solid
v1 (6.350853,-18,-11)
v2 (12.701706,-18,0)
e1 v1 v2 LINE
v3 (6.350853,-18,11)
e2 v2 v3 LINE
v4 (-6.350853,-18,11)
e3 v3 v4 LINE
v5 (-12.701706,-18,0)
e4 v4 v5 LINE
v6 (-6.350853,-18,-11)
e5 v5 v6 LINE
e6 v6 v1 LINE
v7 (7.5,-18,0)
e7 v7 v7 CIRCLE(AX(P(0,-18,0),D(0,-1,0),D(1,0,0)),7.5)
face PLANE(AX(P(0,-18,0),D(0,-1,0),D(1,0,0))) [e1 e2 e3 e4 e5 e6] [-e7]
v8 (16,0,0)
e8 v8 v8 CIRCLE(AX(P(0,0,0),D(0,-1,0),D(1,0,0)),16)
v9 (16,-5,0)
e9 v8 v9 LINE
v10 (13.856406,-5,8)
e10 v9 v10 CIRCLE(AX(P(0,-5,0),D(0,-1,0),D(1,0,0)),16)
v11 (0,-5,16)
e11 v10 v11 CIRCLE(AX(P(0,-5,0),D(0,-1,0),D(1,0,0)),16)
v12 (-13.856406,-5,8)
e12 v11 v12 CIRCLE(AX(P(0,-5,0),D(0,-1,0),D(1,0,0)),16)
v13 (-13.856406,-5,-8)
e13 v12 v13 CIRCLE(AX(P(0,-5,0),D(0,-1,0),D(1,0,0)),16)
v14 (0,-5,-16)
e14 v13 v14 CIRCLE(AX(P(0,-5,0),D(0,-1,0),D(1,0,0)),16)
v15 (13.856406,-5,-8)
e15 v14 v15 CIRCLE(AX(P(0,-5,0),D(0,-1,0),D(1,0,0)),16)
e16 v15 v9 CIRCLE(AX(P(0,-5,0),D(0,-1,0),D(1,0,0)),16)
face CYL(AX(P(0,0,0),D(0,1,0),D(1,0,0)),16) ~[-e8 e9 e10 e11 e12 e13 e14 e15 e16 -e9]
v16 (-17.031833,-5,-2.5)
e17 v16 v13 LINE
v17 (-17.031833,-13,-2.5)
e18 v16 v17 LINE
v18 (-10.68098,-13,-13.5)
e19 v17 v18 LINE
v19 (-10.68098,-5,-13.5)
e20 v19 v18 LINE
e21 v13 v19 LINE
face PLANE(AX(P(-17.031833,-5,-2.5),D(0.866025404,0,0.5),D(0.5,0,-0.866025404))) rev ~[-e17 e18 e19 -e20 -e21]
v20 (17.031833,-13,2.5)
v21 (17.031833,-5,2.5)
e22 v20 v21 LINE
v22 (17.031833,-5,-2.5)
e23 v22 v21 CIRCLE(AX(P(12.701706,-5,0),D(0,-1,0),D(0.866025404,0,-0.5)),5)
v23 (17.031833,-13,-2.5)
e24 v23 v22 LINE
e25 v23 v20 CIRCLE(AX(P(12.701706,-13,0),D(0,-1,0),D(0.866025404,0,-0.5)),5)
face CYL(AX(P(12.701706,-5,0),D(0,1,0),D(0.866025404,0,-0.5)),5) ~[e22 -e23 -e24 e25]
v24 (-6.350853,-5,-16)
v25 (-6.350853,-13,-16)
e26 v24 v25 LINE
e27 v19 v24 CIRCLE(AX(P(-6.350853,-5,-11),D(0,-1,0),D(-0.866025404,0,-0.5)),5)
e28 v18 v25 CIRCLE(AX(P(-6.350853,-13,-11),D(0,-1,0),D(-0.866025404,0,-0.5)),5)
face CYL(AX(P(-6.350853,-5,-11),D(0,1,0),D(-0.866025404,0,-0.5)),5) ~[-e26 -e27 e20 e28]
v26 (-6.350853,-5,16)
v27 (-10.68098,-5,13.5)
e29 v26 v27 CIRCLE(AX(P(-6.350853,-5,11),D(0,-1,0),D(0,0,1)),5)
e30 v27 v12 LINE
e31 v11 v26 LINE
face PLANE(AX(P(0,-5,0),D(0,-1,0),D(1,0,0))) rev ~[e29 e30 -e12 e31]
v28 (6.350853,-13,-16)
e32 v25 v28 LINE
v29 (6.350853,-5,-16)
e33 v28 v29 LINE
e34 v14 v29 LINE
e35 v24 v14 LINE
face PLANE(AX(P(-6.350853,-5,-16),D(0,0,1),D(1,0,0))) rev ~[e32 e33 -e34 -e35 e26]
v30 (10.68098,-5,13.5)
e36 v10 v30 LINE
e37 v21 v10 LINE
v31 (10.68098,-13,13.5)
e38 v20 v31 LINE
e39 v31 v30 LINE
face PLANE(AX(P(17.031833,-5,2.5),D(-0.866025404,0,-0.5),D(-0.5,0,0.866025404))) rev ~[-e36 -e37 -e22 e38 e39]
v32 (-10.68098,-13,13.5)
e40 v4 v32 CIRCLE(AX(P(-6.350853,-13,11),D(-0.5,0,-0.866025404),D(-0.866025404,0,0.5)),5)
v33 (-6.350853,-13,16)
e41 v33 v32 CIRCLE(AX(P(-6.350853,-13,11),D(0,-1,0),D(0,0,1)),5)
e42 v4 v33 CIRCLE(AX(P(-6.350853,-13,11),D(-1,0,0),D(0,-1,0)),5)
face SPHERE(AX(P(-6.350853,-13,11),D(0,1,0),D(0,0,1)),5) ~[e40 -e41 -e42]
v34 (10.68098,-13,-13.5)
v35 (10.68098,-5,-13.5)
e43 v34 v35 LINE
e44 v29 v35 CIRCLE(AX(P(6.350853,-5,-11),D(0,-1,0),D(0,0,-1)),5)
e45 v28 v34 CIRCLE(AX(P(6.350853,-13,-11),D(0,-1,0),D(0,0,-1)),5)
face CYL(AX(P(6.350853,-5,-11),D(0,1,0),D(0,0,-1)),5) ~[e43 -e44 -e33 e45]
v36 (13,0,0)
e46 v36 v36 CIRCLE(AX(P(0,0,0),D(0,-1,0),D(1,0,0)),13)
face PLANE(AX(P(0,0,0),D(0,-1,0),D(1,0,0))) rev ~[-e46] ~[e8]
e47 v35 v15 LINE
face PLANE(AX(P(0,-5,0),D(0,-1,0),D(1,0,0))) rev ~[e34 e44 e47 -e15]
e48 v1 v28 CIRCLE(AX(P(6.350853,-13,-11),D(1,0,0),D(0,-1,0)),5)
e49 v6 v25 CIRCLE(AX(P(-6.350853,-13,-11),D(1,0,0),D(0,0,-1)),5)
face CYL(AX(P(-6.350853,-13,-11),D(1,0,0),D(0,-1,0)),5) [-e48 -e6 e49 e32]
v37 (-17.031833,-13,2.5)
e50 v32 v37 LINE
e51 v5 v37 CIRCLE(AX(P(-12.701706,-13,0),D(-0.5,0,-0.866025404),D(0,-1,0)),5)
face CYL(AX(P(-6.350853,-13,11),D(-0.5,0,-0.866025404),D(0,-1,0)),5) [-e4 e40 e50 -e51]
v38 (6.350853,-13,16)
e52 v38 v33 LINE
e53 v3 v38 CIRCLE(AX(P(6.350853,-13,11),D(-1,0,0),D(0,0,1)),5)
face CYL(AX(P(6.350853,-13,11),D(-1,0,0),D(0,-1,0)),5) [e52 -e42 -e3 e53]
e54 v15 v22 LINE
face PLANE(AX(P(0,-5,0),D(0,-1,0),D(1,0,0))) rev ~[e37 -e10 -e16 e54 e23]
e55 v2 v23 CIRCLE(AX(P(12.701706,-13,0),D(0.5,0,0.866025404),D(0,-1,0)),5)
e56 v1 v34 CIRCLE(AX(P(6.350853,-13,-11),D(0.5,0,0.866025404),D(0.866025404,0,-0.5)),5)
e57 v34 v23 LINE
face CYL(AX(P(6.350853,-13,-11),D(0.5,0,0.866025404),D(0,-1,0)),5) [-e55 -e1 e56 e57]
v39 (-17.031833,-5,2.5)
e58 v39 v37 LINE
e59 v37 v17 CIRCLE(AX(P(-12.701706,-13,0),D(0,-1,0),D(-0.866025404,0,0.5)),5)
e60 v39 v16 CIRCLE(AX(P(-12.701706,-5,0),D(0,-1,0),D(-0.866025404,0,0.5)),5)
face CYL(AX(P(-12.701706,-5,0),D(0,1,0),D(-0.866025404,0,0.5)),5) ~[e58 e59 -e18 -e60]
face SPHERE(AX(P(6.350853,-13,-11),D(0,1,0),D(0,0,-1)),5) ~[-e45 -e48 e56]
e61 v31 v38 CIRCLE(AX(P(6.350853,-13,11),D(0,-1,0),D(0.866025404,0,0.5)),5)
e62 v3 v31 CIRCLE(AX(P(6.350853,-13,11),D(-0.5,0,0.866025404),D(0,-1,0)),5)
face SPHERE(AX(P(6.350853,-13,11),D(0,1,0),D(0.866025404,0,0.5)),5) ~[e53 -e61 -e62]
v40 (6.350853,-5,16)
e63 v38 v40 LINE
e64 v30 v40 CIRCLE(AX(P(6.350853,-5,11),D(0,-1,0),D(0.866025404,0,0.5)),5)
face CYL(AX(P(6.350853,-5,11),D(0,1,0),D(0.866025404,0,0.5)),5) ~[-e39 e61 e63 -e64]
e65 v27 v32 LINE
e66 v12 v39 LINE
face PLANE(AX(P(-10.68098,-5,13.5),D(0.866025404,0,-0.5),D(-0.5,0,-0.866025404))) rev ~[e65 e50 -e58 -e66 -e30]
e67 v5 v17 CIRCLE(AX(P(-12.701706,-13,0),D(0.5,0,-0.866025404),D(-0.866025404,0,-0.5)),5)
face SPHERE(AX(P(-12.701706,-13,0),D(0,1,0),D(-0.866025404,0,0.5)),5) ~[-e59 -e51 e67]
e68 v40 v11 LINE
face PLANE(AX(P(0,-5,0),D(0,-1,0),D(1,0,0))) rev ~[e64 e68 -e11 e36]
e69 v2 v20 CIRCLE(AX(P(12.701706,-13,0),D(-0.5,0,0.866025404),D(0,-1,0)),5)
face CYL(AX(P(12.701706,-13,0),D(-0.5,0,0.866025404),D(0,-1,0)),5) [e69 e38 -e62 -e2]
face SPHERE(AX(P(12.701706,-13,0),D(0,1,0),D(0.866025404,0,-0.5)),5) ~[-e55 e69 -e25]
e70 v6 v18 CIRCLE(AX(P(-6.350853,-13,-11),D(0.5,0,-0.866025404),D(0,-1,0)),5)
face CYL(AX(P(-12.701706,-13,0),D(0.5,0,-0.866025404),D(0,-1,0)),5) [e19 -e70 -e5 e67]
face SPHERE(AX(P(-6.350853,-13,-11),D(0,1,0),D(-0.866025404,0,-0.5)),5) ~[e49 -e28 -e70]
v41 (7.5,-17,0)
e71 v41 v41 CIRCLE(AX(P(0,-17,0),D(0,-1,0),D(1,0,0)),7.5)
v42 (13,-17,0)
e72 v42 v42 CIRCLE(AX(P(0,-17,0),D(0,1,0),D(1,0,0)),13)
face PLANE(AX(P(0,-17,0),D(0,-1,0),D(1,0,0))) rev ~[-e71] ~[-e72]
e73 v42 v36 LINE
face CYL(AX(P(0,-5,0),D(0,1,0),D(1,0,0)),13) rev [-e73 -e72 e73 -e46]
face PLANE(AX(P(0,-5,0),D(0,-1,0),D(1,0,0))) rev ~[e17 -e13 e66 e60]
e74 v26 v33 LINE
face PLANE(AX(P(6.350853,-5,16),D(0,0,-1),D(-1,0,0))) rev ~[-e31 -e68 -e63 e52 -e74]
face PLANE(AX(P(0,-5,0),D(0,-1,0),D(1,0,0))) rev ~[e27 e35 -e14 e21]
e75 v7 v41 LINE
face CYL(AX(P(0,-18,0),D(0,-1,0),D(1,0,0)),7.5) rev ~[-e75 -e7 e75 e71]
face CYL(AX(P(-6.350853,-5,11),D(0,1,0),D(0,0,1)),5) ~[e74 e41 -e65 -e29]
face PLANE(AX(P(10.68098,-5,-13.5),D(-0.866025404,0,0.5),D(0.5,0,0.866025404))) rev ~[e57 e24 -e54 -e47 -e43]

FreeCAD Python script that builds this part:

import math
import FreeCAD as App
import Part
import Sketcher
from FreeCAD import Vector
Q = App.Units.Quantity


def edges_at(feature, points):
    """Names of the edges that pass closest to the given points."""
    edges = feature.Shape.Edges
    near = lambda p: min(range(len(edges)), key=lambda i: edges[i].distToShape(Part.Vertex(*p))[0])
    return sorted({f"Edge{near(p) + 1}" for p in points})

doc = App.newDocument("Part")
body = doc.addObject("PartDesign::Body", "Body")

sketch1 = doc.addObject("Sketcher::SketchObject", "Sketch")
body.addObject(sketch1)
sketch1.AttachmentSupport = (doc.XZ_Plane, [""])
sketch1.MapMode = "FlatFace"
sketch1.addGeometry([
    Part.Circle(Vector(0, 0, 0), Vector(0, 0, 1), 16),
    Part.Circle(Vector(0, 0, 0), Vector(0, 0, 1), 13),
], False)
sketch1.addConstraint([
    Sketcher.Constraint("Coincident", 0, 3, -1, 1),
    Sketcher.Constraint("Coincident", 1, 3, -1, 1),
    Sketcher.Constraint("Diameter", 0, 32.0),
    Sketcher.Constraint("Diameter", 1, 26.0),
])
pad1 = doc.addObject("PartDesign::Pad", "Pad")
body.addObject(pad1)
pad1.Profile = sketch1
pad1.Length = 5

sketch2 = doc.addObject("Sketcher::SketchObject", "Sketch001")
body.addObject(sketch2)
sketch2.AttachmentSupport = (doc.XZ_Plane, [""])
sketch2.MapMode = "FlatFace"
sketch2.AttachmentOffset = App.Placement(Vector(0, 0, 5), App.Rotation())
sketch2.addGeometry([
    Part.LineSegment(Vector(6, 16, 0), Vector(-6, 16, 0)),
    Part.ArcOfCircle(Part.Circle(Vector(-6, 11, 0), Vector(0, 0, 1), 5), math.radians(90), math.radians(150)),
    Part.LineSegment(Vector(-11, 14, 0), Vector(-17, 2, 0)),
    Part.ArcOfCircle(Part.Circle(Vector(-13, 0, 0), Vector(0, 0, 1), 5), math.radians(150), math.radians(210)),
    Part.LineSegment(Vector(-17, -2, 0), Vector(-11, -14, 0)),
    Part.ArcOfCircle(Part.Circle(Vector(-6, -11, 0), Vector(0, 0, 1), 5), math.radians(-150), math.radians(-90)),
    Part.LineSegment(Vector(-6, -16, 0), Vector(6, -16, 0)),
    Part.ArcOfCircle(Part.Circle(Vector(6, -11, 0), Vector(0, 0, 1), 5), math.radians(-90), math.radians(-30)),
    Part.LineSegment(Vector(11, -14, 0), Vector(17, -2, 0)),
    Part.ArcOfCircle(Part.Circle(Vector(13, 0, 0), Vector(0, 0, 1), 5), math.radians(-30), math.radians(30)),
    Part.LineSegment(Vector(17, 2, 0), Vector(11, 14, 0)),
    Part.ArcOfCircle(Part.Circle(Vector(6, 11, 0), Vector(0, 0, 1), 5), math.radians(30), math.radians(90)),
    Part.Circle(Vector(0, 0, 0), Vector(0, 0, 1), 13),
], False)
sketch2.addConstraint([
    Sketcher.Constraint("Tangent", 0, 2, 1, 1),
    Sketcher.Constraint("Tangent", 1, 2, 2, 1),
    Sketcher.Constraint("Tangent", 2, 2, 3, 1),
    Sketcher.Constraint("Tangent", 3, 2, 4, 1),
    Sketcher.Constraint("Tangent", 4, 2, 5, 1),
    Sketcher.Constraint("Tangent", 5, 2, 6, 1),
    Sketcher.Constraint("Tangent", 6, 2, 7, 1),
    Sketcher.Constraint("Tangent", 7, 2, 8, 1),
    Sketcher.Constraint("Tangent", 8, 2, 9, 1),
    Sketcher.Constraint("Tangent", 9, 2, 10, 1),
    Sketcher.Constraint("Tangent", 10, 2, 11, 1),
    Sketcher.Constraint("Tangent", 11, 2, 0, 1),
    Sketcher.Constraint("Horizontal", 0),
    Sketcher.Constraint("Horizontal", 6),
    Sketcher.Constraint("Coincident", 12, 3, -1, 1),
    Sketcher.Constraint("Equal", 1, 3),
    Sketcher.Constraint("Equal", 3, 5),
    Sketcher.Constraint("Equal", 5, 7),
    Sketcher.Constraint("Equal", 7, 9),
    Sketcher.Constraint("Equal", 9, 11),
    Sketcher.Constraint("Symmetric", 1, 3, 7, 3, -1, 1),
    Sketcher.Constraint("Symmetric", 3, 3, 9, 3, -1, 1),
    Sketcher.Constraint("Symmetric", 4, 2, 7, 2, -2),
    Sketcher.Constraint("Parallel", 4, 10),
    Sketcher.Constraint("Diameter", 12, 26.0),
    Sketcher.Constraint("Radius", 1, 5.0),
    Sketcher.Constraint("Angle", 2, Q("-120 deg")),
    Sketcher.Constraint("DistanceY", -1, 1, 1, 3, 11.0),
    Sketcher.Constraint("DistanceX", 0, 2, 0, 1, 12.701706),
])
pad2 = doc.addObject("PartDesign::Pad", "Pad001")
body.addObject(pad2)
pad2.Profile = sketch2
pad2.Length = 13

sketch3 = doc.addObject("Sketcher::SketchObject", "Sketch002")
body.addObject(sketch3)
sketch3.AttachmentSupport = (doc.XZ_Plane, [""])
sketch3.MapMode = "FlatFace"
sketch3.AttachmentOffset = App.Placement(Vector(0, 0, 18), App.Rotation())
sketch3.addGeometry([
    Part.LineSegment(Vector(6, 16, 0), Vector(-6, 16, 0)),
    Part.ArcOfCircle(Part.Circle(Vector(-6, 11, 0), Vector(0, 0, 1), 5), math.radians(90), math.radians(150)),
    Part.LineSegment(Vector(-11, 14, 0), Vector(-17, 2, 0)),
    Part.ArcOfCircle(Part.Circle(Vector(-13, 0, 0), Vector(0, 0, 1), 5), math.radians(150), math.radians(210)),
    Part.LineSegment(Vector(-17, -2, 0), Vector(-11, -14, 0)),
    Part.ArcOfCircle(Part.Circle(Vector(-6, -11, 0), Vector(0, 0, 1), 5), math.radians(-150), math.radians(-90)),
    Part.LineSegment(Vector(-6, -16, 0), Vector(6, -16, 0)),
    Part.ArcOfCircle(Part.Circle(Vector(6, -11, 0), Vector(0, 0, 1), 5), math.radians(-90), math.radians(-30)),
    Part.LineSegment(Vector(11, -14, 0), Vector(17, -2, 0)),
    Part.ArcOfCircle(Part.Circle(Vector(13, 0, 0), Vector(0, 0, 1), 5), math.radians(-30), math.radians(30)),
    Part.LineSegment(Vector(17, 2, 0), Vector(11, 14, 0)),
    Part.ArcOfCircle(Part.Circle(Vector(6, 11, 0), Vector(0, 0, 1), 5), math.radians(30), math.radians(90)),
    Part.Circle(Vector(0, 0, 0), Vector(0, 0, 1), 8),
], False)
sketch3.addConstraint([
    Sketcher.Constraint("Tangent", 0, 2, 1, 1),
    Sketcher.Constraint("Tangent", 1, 2, 2, 1),
    Sketcher.Constraint("Tangent", 2, 2, 3, 1),
    Sketcher.Constraint("Tangent", 3, 2, 4, 1),
    Sketcher.Constraint("Tangent", 4, 2, 5, 1),
    Sketcher.Constraint("Tangent", 5, 2, 6, 1),
    Sketcher.Constraint("Tangent", 6, 2, 7, 1),
    Sketcher.Constraint("Tangent", 7, 2, 8, 1),
    Sketcher.Constraint("Tangent", 8, 2, 9, 1),
    Sketcher.Constraint("Tangent", 9, 2, 10, 1),
    Sketcher.Constraint("Tangent", 10, 2, 11, 1),
    Sketcher.Constraint("Tangent", 11, 2, 0, 1),
    Sketcher.Constraint("Horizontal", 0),
    Sketcher.Constraint("Horizontal", 6),
    Sketcher.Constraint("Coincident", 12, 3, -1, 1),
    Sketcher.Constraint("Equal", 1, 3),
    Sketcher.Constraint("Equal", 3, 5),
    Sketcher.Constraint("Equal", 5, 7),
    Sketcher.Constraint("Equal", 7, 9),
    Sketcher.Constraint("Equal", 9, 11),
    Sketcher.Constraint("Symmetric", 1, 3, 7, 3, -1, 1),
    Sketcher.Constraint("Symmetric", 3, 3, 9, 3, -1, 1),
    Sketcher.Constraint("Symmetric", 4, 2, 7, 2, -2),
    Sketcher.Constraint("Parallel", 4, 10),
    Sketcher.Constraint("Diameter", 12, 15.0),
    Sketcher.Constraint("Radius", 1, 5.0),
    Sketcher.Constraint("Angle", 2, Q("-120 deg")),
    Sketcher.Constraint("DistanceY", -1, 1, 1, 3, 11.0),
    Sketcher.Constraint("DistanceX", 0, 2, 0, 1, 12.701706),
])
pad3 = doc.addObject("PartDesign::Pad", "Pad002")
body.addObject(pad3)
pad3.Profile = sketch3
pad3.Length = 1
pad3.Reversed = True
doc.recompute()

fillet = doc.addObject("PartDesign::Fillet", "Fillet")
body.addObject(fillet)
fillet.Base = (pad3, edges_at(pad3, [(13.856, -18, 8)]))
fillet.Radius = 5

doc.recompute()
